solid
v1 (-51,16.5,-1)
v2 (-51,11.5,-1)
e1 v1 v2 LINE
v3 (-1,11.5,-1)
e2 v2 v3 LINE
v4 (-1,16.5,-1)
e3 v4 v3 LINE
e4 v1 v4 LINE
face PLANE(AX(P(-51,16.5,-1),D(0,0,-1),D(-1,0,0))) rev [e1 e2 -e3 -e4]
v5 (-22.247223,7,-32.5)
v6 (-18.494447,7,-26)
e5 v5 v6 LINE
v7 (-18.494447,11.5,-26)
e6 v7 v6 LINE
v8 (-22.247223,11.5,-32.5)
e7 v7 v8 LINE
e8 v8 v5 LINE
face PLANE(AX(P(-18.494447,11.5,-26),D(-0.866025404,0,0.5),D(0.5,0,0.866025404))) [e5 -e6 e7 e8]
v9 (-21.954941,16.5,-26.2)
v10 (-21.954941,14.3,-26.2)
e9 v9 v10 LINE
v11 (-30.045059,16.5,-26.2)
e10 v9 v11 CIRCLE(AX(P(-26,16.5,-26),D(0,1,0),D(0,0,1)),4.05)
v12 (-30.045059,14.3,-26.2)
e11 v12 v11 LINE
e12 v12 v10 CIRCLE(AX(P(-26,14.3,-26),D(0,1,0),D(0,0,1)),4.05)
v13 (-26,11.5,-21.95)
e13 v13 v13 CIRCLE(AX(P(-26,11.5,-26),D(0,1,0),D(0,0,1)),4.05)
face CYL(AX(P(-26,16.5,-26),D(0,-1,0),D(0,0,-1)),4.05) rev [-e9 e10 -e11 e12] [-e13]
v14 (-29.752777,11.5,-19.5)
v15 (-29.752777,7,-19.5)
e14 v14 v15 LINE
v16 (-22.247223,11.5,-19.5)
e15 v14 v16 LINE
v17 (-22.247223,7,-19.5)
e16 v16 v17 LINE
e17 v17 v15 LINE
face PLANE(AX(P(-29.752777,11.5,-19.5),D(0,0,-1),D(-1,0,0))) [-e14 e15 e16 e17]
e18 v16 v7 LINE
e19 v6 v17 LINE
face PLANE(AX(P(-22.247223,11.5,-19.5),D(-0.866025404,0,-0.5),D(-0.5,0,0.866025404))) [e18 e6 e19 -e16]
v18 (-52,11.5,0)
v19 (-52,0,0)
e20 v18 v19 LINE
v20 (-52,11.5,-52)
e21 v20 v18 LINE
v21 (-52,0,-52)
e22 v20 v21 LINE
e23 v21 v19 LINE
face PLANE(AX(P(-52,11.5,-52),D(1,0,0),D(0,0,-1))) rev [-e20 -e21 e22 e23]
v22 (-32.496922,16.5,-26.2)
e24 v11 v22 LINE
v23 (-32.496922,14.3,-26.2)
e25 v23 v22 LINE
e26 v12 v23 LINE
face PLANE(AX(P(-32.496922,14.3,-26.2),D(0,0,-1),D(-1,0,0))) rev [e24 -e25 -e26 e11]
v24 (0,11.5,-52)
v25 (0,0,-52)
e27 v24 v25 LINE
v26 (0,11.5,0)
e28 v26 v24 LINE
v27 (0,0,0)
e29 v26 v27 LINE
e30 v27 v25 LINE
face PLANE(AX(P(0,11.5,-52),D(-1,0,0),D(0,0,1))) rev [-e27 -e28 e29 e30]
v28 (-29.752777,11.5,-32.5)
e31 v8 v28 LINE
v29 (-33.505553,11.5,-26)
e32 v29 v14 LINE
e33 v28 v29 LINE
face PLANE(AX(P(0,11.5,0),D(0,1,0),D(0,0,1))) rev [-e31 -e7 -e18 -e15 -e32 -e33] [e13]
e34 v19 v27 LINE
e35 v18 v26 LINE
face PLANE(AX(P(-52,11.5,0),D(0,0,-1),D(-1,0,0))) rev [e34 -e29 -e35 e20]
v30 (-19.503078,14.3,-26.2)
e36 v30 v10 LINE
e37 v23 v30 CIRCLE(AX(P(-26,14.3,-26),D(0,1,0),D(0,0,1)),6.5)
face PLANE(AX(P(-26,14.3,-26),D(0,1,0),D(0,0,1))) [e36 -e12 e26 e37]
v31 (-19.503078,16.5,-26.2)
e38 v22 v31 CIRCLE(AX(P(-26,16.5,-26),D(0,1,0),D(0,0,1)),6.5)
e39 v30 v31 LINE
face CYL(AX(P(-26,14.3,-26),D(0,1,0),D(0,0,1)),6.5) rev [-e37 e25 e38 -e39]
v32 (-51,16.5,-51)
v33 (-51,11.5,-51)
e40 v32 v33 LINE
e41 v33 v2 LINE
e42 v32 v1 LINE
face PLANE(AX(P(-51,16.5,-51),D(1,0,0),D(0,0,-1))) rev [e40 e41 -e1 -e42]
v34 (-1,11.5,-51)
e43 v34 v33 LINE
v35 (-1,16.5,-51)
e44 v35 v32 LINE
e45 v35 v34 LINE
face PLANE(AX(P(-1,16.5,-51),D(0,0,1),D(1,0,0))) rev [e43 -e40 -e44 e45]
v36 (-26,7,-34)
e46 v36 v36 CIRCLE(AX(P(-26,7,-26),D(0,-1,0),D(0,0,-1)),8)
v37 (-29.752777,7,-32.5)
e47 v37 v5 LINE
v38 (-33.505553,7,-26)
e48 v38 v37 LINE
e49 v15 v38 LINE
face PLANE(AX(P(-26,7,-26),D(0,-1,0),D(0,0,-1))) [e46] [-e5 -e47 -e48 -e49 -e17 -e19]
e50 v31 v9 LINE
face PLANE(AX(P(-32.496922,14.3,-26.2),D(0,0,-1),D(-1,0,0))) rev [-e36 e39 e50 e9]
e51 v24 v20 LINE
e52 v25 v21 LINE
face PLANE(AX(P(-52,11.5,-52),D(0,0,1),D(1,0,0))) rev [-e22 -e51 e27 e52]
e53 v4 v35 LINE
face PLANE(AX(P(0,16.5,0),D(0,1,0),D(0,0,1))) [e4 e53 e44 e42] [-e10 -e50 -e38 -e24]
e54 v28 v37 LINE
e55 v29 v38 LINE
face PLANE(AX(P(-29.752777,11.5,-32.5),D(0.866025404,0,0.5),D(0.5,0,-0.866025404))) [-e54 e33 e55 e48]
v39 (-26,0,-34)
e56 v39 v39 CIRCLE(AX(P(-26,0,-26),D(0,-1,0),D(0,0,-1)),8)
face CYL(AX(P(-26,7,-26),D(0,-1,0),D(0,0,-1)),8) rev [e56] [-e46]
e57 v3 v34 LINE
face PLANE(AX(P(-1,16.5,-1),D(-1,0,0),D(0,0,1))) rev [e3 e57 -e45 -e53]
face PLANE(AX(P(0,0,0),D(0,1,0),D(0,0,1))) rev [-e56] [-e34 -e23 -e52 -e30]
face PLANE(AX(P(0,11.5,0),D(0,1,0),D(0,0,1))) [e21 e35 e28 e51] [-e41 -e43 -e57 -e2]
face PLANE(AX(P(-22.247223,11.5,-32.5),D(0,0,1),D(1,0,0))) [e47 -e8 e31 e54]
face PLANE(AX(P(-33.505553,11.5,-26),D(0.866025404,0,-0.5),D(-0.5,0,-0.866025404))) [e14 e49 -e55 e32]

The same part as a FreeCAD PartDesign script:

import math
import FreeCAD as App
import Part
import Sketcher
Q = App.Units.Quantity

doc = App.newDocument("Part")
body = doc.addObject("PartDesign::Body", "Body")

sketch1 = body.newObject("Sketcher::SketchObject", "Sketch")
sketch1.AttachmentSupport = (doc.getObject("XZ_Plane"), [""])
sketch1.MapMode = "FlatFace"
sketch1.addGeometry([
    Part.LineSegment(App.Vector(-52, -52, 0), App.Vector(-52, 0, 0)),
    Part.LineSegment(App.Vector(-52, 0, 0), App.Vector(0, 0, 0)),
    Part.LineSegment(App.Vector(0, 0, 0), App.Vector(0, -52, 0)),
    Part.LineSegment(App.Vector(0, -52, 0), App.Vector(-52, -52, 0)),
    Part.LineSegment(App.Vector(-22.247223, -32.5, 0), App.Vector(-18.494447, -26, 0)),
    Part.LineSegment(App.Vector(-18.494447, -26, 0), App.Vector(-22.247223, -19.5, 0)),
    Part.LineSegment(App.Vector(-22.247223, -19.5, 0), App.Vector(-29.752777, -19.5, 0)),
    Part.LineSegment(App.Vector(-29.752777, -19.5, 0), App.Vector(-33.505553, -26, 0)),
    Part.LineSegment(App.Vector(-33.505553, -26, 0), App.Vector(-29.752777, -32.5, 0)),
    Part.LineSegment(App.Vector(-29.752777, -32.5, 0), App.Vector(-22.247223, -32.5, 0)),
], False)
sketch1.addConstraint([
    Sketcher.Constraint("Coincident", 0, 2, 1, 1),
    Sketcher.Constraint("Coincident", 1, 2, 2, 1),
    Sketcher.Constraint("Coincident", 2, 2, 3, 1),
    Sketcher.Constraint("Coincident", 3, 2, 0, 1),
    Sketcher.Constraint("Coincident", 4, 2, 5, 1),
    Sketcher.Constraint("Coincident", 5, 2, 6, 1),
    Sketcher.Constraint("Coincident", 6, 2, 7, 1),
    Sketcher.Constraint("Coincident", 7, 2, 8, 1),
    Sketcher.Constraint("Coincident", 8, 2, 9, 1),
    Sketcher.Constraint("Coincident", 9, 2, 4, 1),
    Sketcher.Constraint("Vertical", 0),
    Sketcher.Constraint("Horizontal", 1),
    Sketcher.Constraint("Vertical", 2),
    Sketcher.Constraint("Horizontal", 3),
    Sketcher.Constraint("Horizontal", 6),
    Sketcher.Constraint("Horizontal", 9),
    Sketcher.Constraint("Coincident", 1, 2, -1, 1),
    Sketcher.Constraint("Parallel", 4, 7),
    Sketcher.Constraint("Parallel", 5, 8),
    Sketcher.Constraint("Horizontal", 4, 2, 7, 2),
    Sketcher.Constraint("Vertical", 6, 2, 8, 2),
    Sketcher.Constraint("Vertical", 5, 2, 9, 2),
    Sketcher.Constraint("Equal", 3, 0),
    Sketcher.Constraint("DistanceX", 1, 1, 1, 2, 52.0),
    Sketcher.Constraint("Angle", 4, Q("60 deg")),
    Sketcher.Constraint("DistanceY", 4, 2, -1, 1, 26.0),
    Sketcher.Constraint("DistanceY", 8, 2, 6, 2, 13.0),
    Sketcher.Constraint("DistanceX", 6, 2, 6, 1, 7.505553),
    Sketcher.Constraint("DistanceX", 4, 2, -1, 1, 18.494447),
])
pad1 = body.newObject("PartDesign::Pad", "Pad")
pad1.Profile = sketch1
pad1.Length = 11.5
pad1.Reversed = True

sketch2 = body.newObject("Sketcher::SketchObject", "Sketch001")
sketch2.AttachmentSupport = (doc.getObject("XZ_Plane"), [""])
sketch2.MapMode = "FlatFace"
sketch2.AttachmentOffset = App.Placement(App.Vector(0, 0, -11.5), App.Rotation())
sketch2.addGeometry([
    Part.LineSegment(App.Vector(-51, -51, 0), App.Vector(-51, -1, 0)),
    Part.LineSegment(App.Vector(-51, -1, 0), App.Vector(-1, -1, 0)),
    Part.LineSegment(App.Vector(-1, -1, 0), App.Vector(-1, -51, 0)),
    Part.LineSegment(App.Vector(-1, -51, 0), App.Vector(-51, -51, 0)),
    Part.Circle(App.Vector(-26, -26, 0), App.Vector(0, 0, 1), 4.05),
], False)
sketch2.addConstraint([
    Sketcher.Constraint("Coincident", 0, 2, 1, 1),
    Sketcher.Constraint("Coincident", 1, 2, 2, 1),
    Sketcher.Constraint("Coincident", 2, 2, 3, 1),
    Sketcher.Constraint("Coincident", 3, 2, 0, 1),
    Sketcher.Constraint("Vertical", 0),
    Sketcher.Constraint("Horizontal", 1),
    Sketcher.Constraint("Vertical", 2),
    Sketcher.Constraint("Horizontal", 3),
    Sketcher.Constraint("Equal", 3, 0),
    Sketcher.Constraint("Diameter", 4, 8.1),
    Sketcher.Constraint("DistanceX", 1, 1, 1, 2, 50.0),
    Sketcher.Constraint("DistanceX", 4, 3, -1, 1, 26.0),
    Sketcher.Constraint("DistanceY", 4, 3, -1, 1, 26.0),
    Sketcher.Constraint("DistanceX", 0, 2, -1, 1, 51.0),
    Sketcher.Constraint("DistanceY", 0, 2, -1, 1, 1.0),
])
pad2 = body.newObject("PartDesign::Pad", "Pad001")
pad2.Profile = sketch2
pad2.Length = 5
pad2.Reversed = True

sketch3 = body.newObject("Sketcher::SketchObject", "Sketch002")
sketch3.AttachmentSupport = (doc.getObject("XZ_Plane"), [""])
sketch3.MapMode = "FlatFace"
sketch3.addGeometry(Part.Circle(App.Vector(-26, -26, 0), App.Vector(0, 0, 1), 8), False)
sketch3.addConstraint([
    Sketcher.Constraint("Diameter", 0, 16.0),
    Sketcher.Constraint("DistanceX", 0, 3, -1, 1, 26.0),
    Sketcher.Constraint("DistanceY", 0, 3, -1, 1, 26.0),
])
pocket1 = body.newObject("PartDesign::Pocket", "Pocket")
pocket1.Profile = sketch3
pocket1.Length = 7

sketch4 = body.newObject("Sketcher::SketchObject", "Sketch003")
sketch4.AttachmentSupport = (doc.getObject("XZ_Plane"), [""])
sketch4.MapMode = "FlatFace"
sketch4.AttachmentOffset = App.Placement(App.Vector(0, 0, -16.5), App.Rotation())
sketch4.addGeometry([
    Part.LineSegment(App.Vector(-19.503078, -26.2, 0), App.Vector(-32.496922, -26.2, 0)),
    Part.ArcOfCircle(Part.Circle(App.Vector(-26, -26, 0), App.Vector(0, 0, 1), 6.5), math.radians(-1.763225), math.radians(181.763225)),
], False)
sketch4.addConstraint([
    Sketcher.Constraint("Coincident", 0, 1, 1, 1),
    Sketcher.Constraint("Coincident", 1, 2, 0, 2),
    Sketcher.Constraint("Horizontal", 0),
    Sketcher.Constraint("Radius", 1, 6.5),
    Sketcher.Constraint("DistanceX", 1, 3, -1, 1, 26.0),
    Sketcher.Constraint("DistanceY", 1, 3, -1, 1, 26.0),
    Sketcher.Constraint("DistanceY", 0, 1, -1, 1, 26.2),
])
pocket2 = body.newObject("PartDesign::Pocket", "Pocket001")
pocket2.Profile = sketch4
pocket2.Length = 2.2
pocket2.Reversed = True

doc.recompute()
